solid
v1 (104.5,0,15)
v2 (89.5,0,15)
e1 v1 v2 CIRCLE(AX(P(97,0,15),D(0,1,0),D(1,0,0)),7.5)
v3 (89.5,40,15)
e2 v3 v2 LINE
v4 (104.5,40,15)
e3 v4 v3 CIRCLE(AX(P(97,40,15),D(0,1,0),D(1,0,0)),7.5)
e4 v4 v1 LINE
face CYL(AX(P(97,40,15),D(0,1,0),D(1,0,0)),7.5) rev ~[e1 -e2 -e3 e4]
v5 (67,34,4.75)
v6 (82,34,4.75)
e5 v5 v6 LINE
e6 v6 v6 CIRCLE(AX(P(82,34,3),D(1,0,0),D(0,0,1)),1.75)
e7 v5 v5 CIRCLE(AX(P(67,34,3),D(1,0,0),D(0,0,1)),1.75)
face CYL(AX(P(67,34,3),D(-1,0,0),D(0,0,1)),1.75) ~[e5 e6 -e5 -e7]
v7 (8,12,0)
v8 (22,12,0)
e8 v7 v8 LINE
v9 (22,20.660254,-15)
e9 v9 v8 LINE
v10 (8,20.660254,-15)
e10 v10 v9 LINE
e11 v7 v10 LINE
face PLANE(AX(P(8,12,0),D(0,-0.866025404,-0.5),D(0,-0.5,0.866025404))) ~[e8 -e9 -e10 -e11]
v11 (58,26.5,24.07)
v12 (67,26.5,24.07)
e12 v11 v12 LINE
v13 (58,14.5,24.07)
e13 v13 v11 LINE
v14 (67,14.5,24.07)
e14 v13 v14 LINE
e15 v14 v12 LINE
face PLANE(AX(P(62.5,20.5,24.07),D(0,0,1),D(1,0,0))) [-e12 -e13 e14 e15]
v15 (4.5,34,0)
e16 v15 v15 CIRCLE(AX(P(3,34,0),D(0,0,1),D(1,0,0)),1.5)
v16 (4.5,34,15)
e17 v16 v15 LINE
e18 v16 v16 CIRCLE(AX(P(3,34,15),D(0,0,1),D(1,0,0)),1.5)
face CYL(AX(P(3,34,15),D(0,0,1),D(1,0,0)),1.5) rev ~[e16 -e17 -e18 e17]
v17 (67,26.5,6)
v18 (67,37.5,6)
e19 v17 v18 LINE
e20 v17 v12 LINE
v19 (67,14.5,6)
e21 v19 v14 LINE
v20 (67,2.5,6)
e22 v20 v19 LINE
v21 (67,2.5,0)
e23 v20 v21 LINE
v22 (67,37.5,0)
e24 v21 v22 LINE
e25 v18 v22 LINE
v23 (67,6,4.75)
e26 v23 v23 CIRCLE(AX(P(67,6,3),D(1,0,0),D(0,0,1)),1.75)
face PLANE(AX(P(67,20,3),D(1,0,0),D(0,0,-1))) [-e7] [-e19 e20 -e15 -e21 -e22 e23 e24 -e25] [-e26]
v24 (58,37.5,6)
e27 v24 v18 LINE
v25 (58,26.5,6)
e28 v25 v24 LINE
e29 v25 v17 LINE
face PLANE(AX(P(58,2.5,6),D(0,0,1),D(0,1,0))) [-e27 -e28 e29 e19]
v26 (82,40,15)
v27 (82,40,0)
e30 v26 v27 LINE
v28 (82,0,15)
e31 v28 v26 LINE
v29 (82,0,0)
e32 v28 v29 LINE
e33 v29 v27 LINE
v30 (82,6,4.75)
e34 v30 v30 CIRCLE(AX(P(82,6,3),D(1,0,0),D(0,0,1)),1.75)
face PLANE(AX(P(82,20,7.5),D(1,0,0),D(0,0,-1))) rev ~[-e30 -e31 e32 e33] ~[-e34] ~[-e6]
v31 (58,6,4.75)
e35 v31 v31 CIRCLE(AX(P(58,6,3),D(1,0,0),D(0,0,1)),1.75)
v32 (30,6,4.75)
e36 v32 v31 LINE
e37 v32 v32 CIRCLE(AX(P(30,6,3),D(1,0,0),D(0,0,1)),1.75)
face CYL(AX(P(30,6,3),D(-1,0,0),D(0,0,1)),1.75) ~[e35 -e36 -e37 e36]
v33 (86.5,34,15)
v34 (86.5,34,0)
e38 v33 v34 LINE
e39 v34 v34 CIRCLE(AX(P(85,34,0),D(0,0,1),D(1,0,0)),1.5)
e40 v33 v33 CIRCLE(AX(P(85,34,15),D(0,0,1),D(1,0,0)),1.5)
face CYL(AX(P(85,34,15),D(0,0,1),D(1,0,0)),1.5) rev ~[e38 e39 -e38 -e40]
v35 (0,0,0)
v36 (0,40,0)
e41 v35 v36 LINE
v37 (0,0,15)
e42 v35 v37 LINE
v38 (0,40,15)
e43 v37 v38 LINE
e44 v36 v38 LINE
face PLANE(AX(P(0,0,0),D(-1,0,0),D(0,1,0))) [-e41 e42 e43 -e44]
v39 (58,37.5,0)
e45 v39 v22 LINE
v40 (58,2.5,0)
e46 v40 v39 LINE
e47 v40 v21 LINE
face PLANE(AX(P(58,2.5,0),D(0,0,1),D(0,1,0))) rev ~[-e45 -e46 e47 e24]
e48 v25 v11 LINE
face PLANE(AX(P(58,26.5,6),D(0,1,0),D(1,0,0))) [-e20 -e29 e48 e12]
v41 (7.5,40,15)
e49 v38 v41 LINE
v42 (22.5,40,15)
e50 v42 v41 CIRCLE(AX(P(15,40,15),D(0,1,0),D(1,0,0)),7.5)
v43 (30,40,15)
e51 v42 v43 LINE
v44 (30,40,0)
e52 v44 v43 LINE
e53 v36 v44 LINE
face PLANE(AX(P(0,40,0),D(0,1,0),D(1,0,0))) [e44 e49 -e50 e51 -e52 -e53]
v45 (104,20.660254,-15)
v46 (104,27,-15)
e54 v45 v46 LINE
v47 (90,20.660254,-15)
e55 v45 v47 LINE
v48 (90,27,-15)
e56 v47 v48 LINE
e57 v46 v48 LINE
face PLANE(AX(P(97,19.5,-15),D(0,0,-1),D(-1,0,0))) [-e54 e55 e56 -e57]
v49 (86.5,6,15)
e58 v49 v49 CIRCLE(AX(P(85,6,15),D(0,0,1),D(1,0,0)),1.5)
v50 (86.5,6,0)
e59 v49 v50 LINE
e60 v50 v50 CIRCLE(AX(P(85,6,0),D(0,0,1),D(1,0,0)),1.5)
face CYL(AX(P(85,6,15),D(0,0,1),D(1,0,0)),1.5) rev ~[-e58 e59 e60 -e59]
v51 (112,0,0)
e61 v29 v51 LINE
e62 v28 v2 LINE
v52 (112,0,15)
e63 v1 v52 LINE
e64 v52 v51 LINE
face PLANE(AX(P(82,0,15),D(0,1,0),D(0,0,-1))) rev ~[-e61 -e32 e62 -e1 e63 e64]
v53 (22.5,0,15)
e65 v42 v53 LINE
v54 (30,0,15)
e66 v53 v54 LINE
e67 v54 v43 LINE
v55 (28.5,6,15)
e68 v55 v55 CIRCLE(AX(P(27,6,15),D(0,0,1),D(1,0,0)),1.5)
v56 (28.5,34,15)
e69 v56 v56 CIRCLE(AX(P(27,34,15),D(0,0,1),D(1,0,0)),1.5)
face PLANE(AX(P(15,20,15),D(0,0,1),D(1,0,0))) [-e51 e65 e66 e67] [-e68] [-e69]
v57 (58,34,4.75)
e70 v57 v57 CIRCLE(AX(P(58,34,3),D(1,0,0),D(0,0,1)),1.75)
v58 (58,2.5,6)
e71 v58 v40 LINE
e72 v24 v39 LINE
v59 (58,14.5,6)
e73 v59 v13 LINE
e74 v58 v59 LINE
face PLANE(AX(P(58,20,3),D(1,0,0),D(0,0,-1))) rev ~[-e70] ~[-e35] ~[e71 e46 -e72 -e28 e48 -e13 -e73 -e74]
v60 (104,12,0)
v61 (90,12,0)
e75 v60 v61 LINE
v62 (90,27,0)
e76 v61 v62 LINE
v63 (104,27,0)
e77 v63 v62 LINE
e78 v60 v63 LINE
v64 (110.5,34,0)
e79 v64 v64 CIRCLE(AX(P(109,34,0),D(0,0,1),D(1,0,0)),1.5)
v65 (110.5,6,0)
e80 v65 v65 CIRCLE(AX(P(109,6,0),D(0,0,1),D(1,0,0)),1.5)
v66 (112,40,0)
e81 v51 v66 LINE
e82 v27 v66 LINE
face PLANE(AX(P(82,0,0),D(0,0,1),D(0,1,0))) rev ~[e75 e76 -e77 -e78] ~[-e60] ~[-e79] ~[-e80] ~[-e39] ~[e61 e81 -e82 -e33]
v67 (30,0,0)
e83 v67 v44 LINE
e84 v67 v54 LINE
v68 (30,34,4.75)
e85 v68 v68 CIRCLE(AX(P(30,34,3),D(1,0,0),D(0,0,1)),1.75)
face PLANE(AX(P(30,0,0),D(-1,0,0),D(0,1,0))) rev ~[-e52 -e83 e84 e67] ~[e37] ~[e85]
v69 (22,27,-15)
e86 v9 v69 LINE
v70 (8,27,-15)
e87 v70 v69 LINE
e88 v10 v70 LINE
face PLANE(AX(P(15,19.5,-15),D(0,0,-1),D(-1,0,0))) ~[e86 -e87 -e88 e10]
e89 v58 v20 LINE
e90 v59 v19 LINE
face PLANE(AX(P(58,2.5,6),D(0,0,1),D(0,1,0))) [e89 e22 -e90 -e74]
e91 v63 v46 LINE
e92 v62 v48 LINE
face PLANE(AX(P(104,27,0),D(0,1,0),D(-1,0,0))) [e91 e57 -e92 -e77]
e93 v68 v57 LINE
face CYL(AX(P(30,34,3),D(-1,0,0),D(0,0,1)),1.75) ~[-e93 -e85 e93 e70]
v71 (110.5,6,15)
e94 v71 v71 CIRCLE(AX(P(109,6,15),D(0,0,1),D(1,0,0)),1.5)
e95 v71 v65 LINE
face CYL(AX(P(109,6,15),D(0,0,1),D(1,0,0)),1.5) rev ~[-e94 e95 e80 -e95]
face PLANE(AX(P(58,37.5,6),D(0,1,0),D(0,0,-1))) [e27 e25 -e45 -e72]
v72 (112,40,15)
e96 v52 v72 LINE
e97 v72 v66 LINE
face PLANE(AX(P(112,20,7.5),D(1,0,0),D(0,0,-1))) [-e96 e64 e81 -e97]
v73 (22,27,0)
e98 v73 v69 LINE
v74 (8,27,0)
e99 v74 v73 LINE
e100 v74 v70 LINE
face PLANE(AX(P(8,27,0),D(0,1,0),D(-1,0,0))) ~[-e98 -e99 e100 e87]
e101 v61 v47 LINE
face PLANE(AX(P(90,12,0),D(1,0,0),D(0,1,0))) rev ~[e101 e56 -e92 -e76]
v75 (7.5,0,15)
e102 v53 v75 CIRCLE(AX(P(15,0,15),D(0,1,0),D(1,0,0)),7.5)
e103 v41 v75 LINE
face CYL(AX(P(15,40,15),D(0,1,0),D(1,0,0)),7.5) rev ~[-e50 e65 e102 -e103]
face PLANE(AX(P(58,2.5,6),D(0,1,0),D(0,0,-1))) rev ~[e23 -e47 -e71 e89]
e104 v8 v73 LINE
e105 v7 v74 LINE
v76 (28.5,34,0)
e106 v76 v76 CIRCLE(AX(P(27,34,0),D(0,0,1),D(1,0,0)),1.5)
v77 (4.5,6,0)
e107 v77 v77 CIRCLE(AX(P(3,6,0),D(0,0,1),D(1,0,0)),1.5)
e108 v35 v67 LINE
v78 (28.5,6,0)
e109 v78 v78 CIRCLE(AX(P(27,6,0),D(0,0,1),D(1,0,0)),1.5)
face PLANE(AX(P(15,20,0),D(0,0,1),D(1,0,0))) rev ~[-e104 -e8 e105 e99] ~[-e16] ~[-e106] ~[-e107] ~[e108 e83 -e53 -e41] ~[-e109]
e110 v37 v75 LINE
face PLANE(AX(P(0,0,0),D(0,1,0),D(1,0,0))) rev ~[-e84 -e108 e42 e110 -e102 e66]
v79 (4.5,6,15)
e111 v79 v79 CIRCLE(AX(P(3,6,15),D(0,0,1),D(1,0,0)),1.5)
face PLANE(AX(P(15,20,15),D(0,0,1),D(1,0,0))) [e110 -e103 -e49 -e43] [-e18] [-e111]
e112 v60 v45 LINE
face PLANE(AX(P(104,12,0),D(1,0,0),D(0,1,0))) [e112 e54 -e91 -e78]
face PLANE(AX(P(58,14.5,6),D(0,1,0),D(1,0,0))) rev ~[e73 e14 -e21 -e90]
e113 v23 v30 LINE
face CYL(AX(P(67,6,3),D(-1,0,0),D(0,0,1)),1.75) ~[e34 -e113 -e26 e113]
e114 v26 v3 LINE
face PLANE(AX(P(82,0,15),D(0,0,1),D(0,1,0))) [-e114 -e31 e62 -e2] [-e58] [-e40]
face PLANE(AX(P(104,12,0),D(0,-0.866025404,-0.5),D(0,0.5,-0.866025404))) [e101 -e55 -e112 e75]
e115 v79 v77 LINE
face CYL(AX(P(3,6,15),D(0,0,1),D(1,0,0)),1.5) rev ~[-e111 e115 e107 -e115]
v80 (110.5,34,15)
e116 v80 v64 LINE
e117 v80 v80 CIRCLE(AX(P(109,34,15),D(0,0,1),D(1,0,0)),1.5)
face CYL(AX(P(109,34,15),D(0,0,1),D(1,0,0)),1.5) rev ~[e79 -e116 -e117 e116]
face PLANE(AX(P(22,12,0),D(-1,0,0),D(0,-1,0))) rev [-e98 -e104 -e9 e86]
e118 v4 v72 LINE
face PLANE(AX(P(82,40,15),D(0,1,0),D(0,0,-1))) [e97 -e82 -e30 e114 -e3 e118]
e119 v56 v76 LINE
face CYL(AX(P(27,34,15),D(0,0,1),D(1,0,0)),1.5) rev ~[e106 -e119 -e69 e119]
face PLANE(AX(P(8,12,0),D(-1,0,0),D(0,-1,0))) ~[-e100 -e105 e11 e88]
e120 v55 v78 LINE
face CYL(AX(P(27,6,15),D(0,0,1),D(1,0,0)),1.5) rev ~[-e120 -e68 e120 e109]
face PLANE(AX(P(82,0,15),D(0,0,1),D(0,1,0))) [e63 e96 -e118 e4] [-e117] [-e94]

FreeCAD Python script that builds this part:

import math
import FreeCAD as App
import Part
import Sketcher
Q = App.Units.Quantity


def add_polygon(sketch, points):
    """Adds a closed chain of lines whose ends are joined by coincident constraints."""
    first, n = sketch.GeometryCount, len(points)
    for a, b in zip(points, points[1:] + points[:1]):
        sketch.addGeometry(Part.LineSegment(App.Vector(*a, 0), App.Vector(*b, 0)), False)
    for i in range(n):
        sketch.addConstraint(Sketcher.Constraint("Coincident", first + i, 2, first + (i + 1) % n, 1))

doc = App.newDocument("Part")
body = doc.addObject("PartDesign::Body", "Body")

sketch1 = body.newObject("Sketcher::SketchObject", "Sketch")
sketch1.AttachmentSupport = (doc.getObject("XY_Plane"), [""])
sketch1.MapMode = "FlatFace"
add_polygon(sketch1, [(0, 40), (0, 0), (30, 0), (30, 40)])
sketch1.addConstraint([
    Sketcher.Constraint("Vertical", 0),
    Sketcher.Constraint("Horizontal", 1),
    Sketcher.Constraint("Vertical", 2),
    Sketcher.Constraint("Horizontal", 3),
    Sketcher.Constraint("Coincident", 0, 2, -1, 1),
    Sketcher.Constraint("DistanceX", 1, 1, 1, 2, Q("30 mm")),
    Sketcher.Constraint("DistanceY", 0, 2, 0, 1, Q("40 mm")),
])
pad1 = body.newObject("PartDesign::Pad", "Pad")
pad1.Profile = sketch1
pad1.Length = 15

sketch2 = body.newObject("Sketcher::SketchObject", "Sketch001")
sketch2.AttachmentSupport = (doc.getObject("XZ_Plane"), [""])
sketch2.MapMode = "FlatFace"
sketch2.AttachmentOffset = App.Placement(App.Vector(0, 0, -40), App.Rotation())
sketch2.addGeometry([
    Part.LineSegment(App.Vector(8, 15, 0), App.Vector(22, 15, 0)),
    Part.ArcOfCircle(Part.Circle(App.Vector(15, 15, 0), App.Vector(0, 0, 1), 8), math.radians(180), math.radians(360)),
], False)
sketch2.addConstraint([
    Sketcher.Constraint("Coincident", 0, 1, 1, 1),
    Sketcher.Constraint("Coincident", 1, 2, 0, 2),
    Sketcher.Constraint("Horizontal", 0),
    Sketcher.Constraint("Horizontal", 1, 3, 0, 1),
    Sketcher.Constraint("Radius", 1, Q("7.5 mm")),
    Sketcher.Constraint("DistanceX", -1, 1, 1, 3, Q("15 mm")),
    Sketcher.Constraint("DistanceY", -1, 1, 1, 3, Q("15 mm")),
])
pocket1 = body.newObject("PartDesign::Pocket", "Pocket")
pocket1.Profile = sketch2
pocket1.Length = 49
pocket1.Reversed = True

sketch3 = body.newObject("Sketcher::SketchObject", "Sketch002")
sketch3.AttachmentSupport = (doc.getObject("XY_Plane"), [""])
sketch3.MapMode = "FlatFace"
sketch3.AttachmentOffset = App.Placement(App.Vector(0, 0, 15), App.Rotation())
sketch3.addGeometry([
    Part.Circle(App.Vector(3, 34, 0), App.Vector(0, 0, 1), 1.5),
    Part.Circle(App.Vector(3, 6, 0), App.Vector(0, 0, 1), 1.5),
    Part.Circle(App.Vector(27, 34, 0), App.Vector(0, 0, 1), 1.5),
    Part.Circle(App.Vector(27, 6, 0), App.Vector(0, 0, 1), 1.5),
], False)
sketch3.addConstraint([
    Sketcher.Constraint("Equal", 0, 1),
    Sketcher.Constraint("Equal", 1, 2),
    Sketcher.Constraint("Equal", 2, 3),
    Sketcher.Constraint("Horizontal", 0, 3, 2, 3),
    Sketcher.Constraint("Horizontal", 1, 3, 3, 3),
    Sketcher.Constraint("Vertical", 0, 3, 1, 3),
    Sketcher.Constraint("Vertical", 2, 3, 3, 3),
    Sketcher.Constraint("Diameter", 0, Q("3 mm")),
    Sketcher.Constraint("DistanceX", -1, 1, 0, 3, Q("3 mm")),
    Sketcher.Constraint("DistanceY", -1, 1, 0, 3, Q("34 mm")),
    Sketcher.Constraint("DistanceY", -1, 1, 1, 3, Q("6 mm")),
    Sketcher.Constraint("DistanceX", -1, 1, 2, 3, Q("27 mm")),
])
pocket2 = body.newObject("PartDesign::Pocket", "Pocket001")
pocket2.Profile = sketch3
pocket2.Length = 49

sketch4 = body.newObject("Sketcher::SketchObject", "Sketch003")
sketch4.AttachmentSupport = (doc.getObject("YZ_Plane"), [""])
sketch4.MapMode = "FlatFace"
sketch4.AttachmentOffset = App.Placement(App.Vector(0, 0, 30), App.Rotation())
sketch4.addGeometry([
    Part.Circle(App.Vector(34, 3, 0), App.Vector(0, 0, 1), 1.8),
    Part.Circle(App.Vector(6, 3, 0), App.Vector(0, 0, 1), 1.8),
], False)
sketch4.addConstraint([
    Sketcher.Constraint("Equal", 0, 1),
    Sketcher.Constraint("Horizontal", 0, 3, 1, 3),
    Sketcher.Constraint("Diameter", 0, Q("3.5 mm")),
    Sketcher.Constraint("DistanceX", -1, 1, 0, 3, Q("34 mm")),
    Sketcher.Constraint("DistanceY", -1, 1, 0, 3, Q("3 mm")),
    Sketcher.Constraint("DistanceX", -1, 1, 1, 3, Q("6 mm")),
])
pad2 = body.newObject("PartDesign::Pad", "Pad001")
pad2.Profile = sketch4
pad2.Length = 28

sketch5 = body.newObject("Sketcher::SketchObject", "Sketch004")
sketch5.AttachmentSupport = (doc.getObject("YZ_Plane"), [""])
sketch5.MapMode = "FlatFace"
sketch5.AttachmentOffset = App.Placement(App.Vector(0, 0, 58), App.Rotation())
add_polygon(sketch5, [(38, 6), (2, 6), (2, 0), (38, 0)])
sketch5.addConstraint([
    Sketcher.Constraint("Horizontal", 0),
    Sketcher.Constraint("Vertical", 1),
    Sketcher.Constraint("Horizontal", 2),
    Sketcher.Constraint("Vertical", 3),
    Sketcher.Constraint("PointOnObject", 1, 2, -1),
    Sketcher.Constraint("DistanceX", 0, 2, 0, 1, Q("35 mm")),
    Sketcher.Constraint("DistanceY", 1, 2, 1, 1, Q("6 mm")),
    Sketcher.Constraint("DistanceX", -1, 1, 0, 2, Q("2.5 mm")),
])
pad3 = body.newObject("PartDesign::Pad", "Pad002")
pad3.Profile = sketch5
pad3.Length = 9

sketch6 = body.newObject("Sketcher::SketchObject", "Sketch005")
sketch6.AttachmentSupport = (doc.getObject("YZ_Plane"), [""])
sketch6.MapMode = "FlatFace"
sketch6.AttachmentOffset = App.Placement(App.Vector(0, 0, 67), App.Rotation())
sketch6.addGeometry([
    Part.Circle(App.Vector(34, 3, 0), App.Vector(0, 0, 1), 1.8),
    Part.Circle(App.Vector(6, 3, 0), App.Vector(0, 0, 1), 1.8),
], False)
sketch6.addConstraint([
    Sketcher.Constraint("Equal", 0, 1),
    Sketcher.Constraint("Horizontal", 0, 3, 1, 3),
    Sketcher.Constraint("Diameter", 0, Q("3.5 mm")),
    Sketcher.Constraint("DistanceX", -1, 1, 0, 3, Q("34 mm")),
    Sketcher.Constraint("DistanceY", -1, 1, 0, 3, Q("3 mm")),
    Sketcher.Constraint("DistanceX", -1, 1, 1, 3, Q("6 mm")),
])
pad4 = body.newObject("PartDesign::Pad", "Pad003")
pad4.Profile = sketch6
pad4.Length = 15

sketch7 = body.newObject("Sketcher::SketchObject", "Sketch006")
sketch7.AttachmentSupport = (doc.getObject("YZ_Plane"), [""])
sketch7.MapMode = "FlatFace"
sketch7.AttachmentOffset = App.Placement(App.Vector(0, 0, 82), App.Rotation())
add_polygon(sketch7, [(40, 15), (0, 15), (0, 0), (40, 0)])
sketch7.addConstraint([
    Sketcher.Constraint("Horizontal", 0),
    Sketcher.Constraint("Vertical", 1),
    Sketcher.Constraint("Horizontal", 2),
    Sketcher.Constraint("Vertical", 3),
    Sketcher.Constraint("Coincident", 1, 2, -1, 1),
    Sketcher.Constraint("DistanceX", 0, 2, 0, 1, Q("40 mm")),
    Sketcher.Constraint("DistanceY", 1, 2, 1, 1, Q("15 mm")),
])
pad5 = body.newObject("PartDesign::Pad", "Pad004")
pad5.Profile = sketch7
pad5.Length = 30

sketch8 = body.newObject("Sketcher::SketchObject", "Sketch007")
sketch8.AttachmentSupport = (doc.getObject("XZ_Plane"), [""])
sketch8.MapMode = "FlatFace"
sketch8.AttachmentOffset = App.Placement(App.Vector(0, 0, -40), App.Rotation())
sketch8.addGeometry([
    Part.LineSegment(App.Vector(90, 15, 0), App.Vector(104, 15, 0)),
    Part.ArcOfCircle(Part.Circle(App.Vector(97, 15, 0), App.Vector(0, 0, 1), 8), math.radians(180), math.radians(360)),
], False)
sketch8.addConstraint([
    Sketcher.Constraint("Coincident", 0, 1, 1, 1),
    Sketcher.Constraint("Coincident", 1, 2, 0, 2),
    Sketcher.Constraint("Horizontal", 0),
    Sketcher.Constraint("Horizontal", 1, 3, 0, 1),
    Sketcher.Constraint("Radius", 1, Q("7.5 mm")),
    Sketcher.Constraint("DistanceX", -1, 1, 1, 3, Q("97 mm")),
    Sketcher.Constraint("DistanceY", -1, 1, 1, 3, Q("15 mm")),
])
pocket3 = body.newObject("PartDesign::Pocket", "Pocket002")
pocket3.Profile = sketch8
pocket3.Length = 59
pocket3.Reversed = True

sketch9 = body.newObject("Sketcher::SketchObject", "Sketch008")
sketch9.AttachmentSupport = (doc.getObject("XY_Plane"), [""])
sketch9.MapMode = "FlatFace"
sketch9.AttachmentOffset = App.Placement(App.Vector(0, 0, 15), App.Rotation())
sketch9.addGeometry([
    Part.Circle(App.Vector(85, 34, 0), App.Vector(0, 0, 1), 1.5),
    Part.Circle(App.Vector(109, 34, 0), App.Vector(0, 0, 1), 1.5),
    Part.Circle(App.Vector(109, 6, 0), App.Vector(0, 0, 1), 1.5),
    Part.Circle(App.Vector(85, 6, 0), App.Vector(0, 0, 1), 1.5),
], False)
sketch9.addConstraint([
    Sketcher.Constraint("Equal", 0, 1),
    Sketcher.Constraint("Equal", 1, 2),
    Sketcher.Constraint("Equal", 2, 3),
    Sketcher.Constraint("Horizontal", 0, 3, 1, 3),
    Sketcher.Constraint("Horizontal", 2, 3, 3, 3),
    Sketcher.Constraint("Vertical", 1, 3, 2, 3),
    Sketcher.Constraint("Vertical", 0, 3, 3, 3),
    Sketcher.Constraint("Diameter", 0, Q("3 mm")),
    Sketcher.Constraint("DistanceX", -1, 1, 0, 3, Q("85 mm")),
    Sketcher.Constraint("DistanceY", -1, 1, 0, 3, Q("34 mm")),
    Sketcher.Constraint("DistanceX", -1, 1, 1, 3, Q("109 mm")),
    Sketcher.Constraint("DistanceY", -1, 1, 2, 3, Q("6 mm")),
])
pocket4 = body.newObject("PartDesign::Pocket", "Pocket003")
pocket4.Profile = sketch9
pocket4.Length = 59

sketch10 = body.newObject("Sketcher::SketchObject", "Sketch009")
sketch10.AttachmentSupport = (doc.getObject("XY_Plane"), [""])
sketch10.MapMode = "FlatFace"
add_polygon(sketch10, [(104, 27), (104, 12), (90, 12), (90, 27)])
sketch10.addConstraint([
    Sketcher.Constraint("Vertical", 0),
    Sketcher.Constraint("Horizontal", 1),
    Sketcher.Constraint("Vertical", 2),
    Sketcher.Constraint("Horizontal", 3),
    Sketcher.Constraint("DistanceX", 1, 2, 1, 1, Q("14 mm")),
    Sketcher.Constraint("DistanceY", 0, 2, 0, 1, Q("15 mm")),
    Sketcher.Constraint("DistanceX", -1, 1, 0, 2, Q("104 mm")),
    Sketcher.Constraint("DistanceY", -1, 1, 0, 2, Q("12 mm")),
])
pad6 = body.newObject("PartDesign::Pad", "Pad005")
pad6.Profile = sketch10
pad6.Length = 15
pad6.Reversed = True

sketch11 = body.newObject("Sketcher::SketchObject", "Sketch010")
sketch11.AttachmentSupport = (doc.getObject("YZ_Plane"), [""])
sketch11.MapMode = "FlatFace"
sketch11.AttachmentOffset = App.Placement(App.Vector(0, 0, 104), App.Rotation())
add_polygon(sketch11, [(21, -15), (12, 0), (12, -15)])
sketch11.addConstraint([
    Sketcher.Constraint("Vertical", 1),
    Sketcher.Constraint("Horizontal", 2),
    Sketcher.Constraint("PointOnObject", 0, 2, -1),
    Sketcher.Constraint("DistanceY", 1, 2, 1, 1, Q("15 mm")),
    Sketcher.Constraint("Angle", 0, Q("120 deg")),
    Sketcher.Constraint("DistanceX", -1, 1, 0, 2, Q("12 mm")),
])
pocket5 = body.newObject("PartDesign::Pocket", "Pocket004")
pocket5.Profile = sketch11
pocket5.Length = 21
doc.recompute()

datumplane = body.newObject("PartDesign::Plane", "DatumPlane")
datumplane.AttachmentSupport = (doc.getObject("YZ_Plane"), [""])
datumplane.MapMode = "FlatFace"
datumplane.AttachmentOffset = App.Placement(App.Vector(0, 0, 56), App.Rotation())
mirrored = body.newObject("PartDesign::Mirrored", "Mirrored")
mirrored.Originals = [pad6, pocket5]
mirrored.MirrorPlane = (datumplane, [""])
body.Tip = mirrored

sketch12 = body.newObject("Sketcher::SketchObject", "Sketch011")
sketch12.AttachmentSupport = (doc.getObject("XY_Plane"), [""])
sketch12.MapMode = "FlatFace"
sketch12.AttachmentOffset = App.Placement(App.Vector(0, 0, 6), App.Rotation())
add_polygon(sketch12, [(58, 26), (58, 14), (67, 14), (67, 26)])
sketch12.addConstraint([
    Sketcher.Constraint("Vertical", 0),
    Sketcher.Constraint("Horizontal", 1),
    Sketcher.Constraint("Vertical", 2),
    Sketcher.Constraint("Horizontal", 3),
    Sketcher.Constraint("DistanceX", 1, 1, 1, 2, Q("9 mm")),
    Sketcher.Constraint("DistanceY", 0, 2, 0, 1, Q("12 mm")),
    Sketcher.Constraint("DistanceX", -1, 1, 0, 2, Q("58 mm")),
    Sketcher.Constraint("DistanceY", -1, 1, 0, 2, Q("14.5 mm")),
])
pad7 = body.newObject("PartDesign::Pad", "Pad006")
pad7.Profile = sketch12
pad7.Length = 18.07

doc.recompute()
